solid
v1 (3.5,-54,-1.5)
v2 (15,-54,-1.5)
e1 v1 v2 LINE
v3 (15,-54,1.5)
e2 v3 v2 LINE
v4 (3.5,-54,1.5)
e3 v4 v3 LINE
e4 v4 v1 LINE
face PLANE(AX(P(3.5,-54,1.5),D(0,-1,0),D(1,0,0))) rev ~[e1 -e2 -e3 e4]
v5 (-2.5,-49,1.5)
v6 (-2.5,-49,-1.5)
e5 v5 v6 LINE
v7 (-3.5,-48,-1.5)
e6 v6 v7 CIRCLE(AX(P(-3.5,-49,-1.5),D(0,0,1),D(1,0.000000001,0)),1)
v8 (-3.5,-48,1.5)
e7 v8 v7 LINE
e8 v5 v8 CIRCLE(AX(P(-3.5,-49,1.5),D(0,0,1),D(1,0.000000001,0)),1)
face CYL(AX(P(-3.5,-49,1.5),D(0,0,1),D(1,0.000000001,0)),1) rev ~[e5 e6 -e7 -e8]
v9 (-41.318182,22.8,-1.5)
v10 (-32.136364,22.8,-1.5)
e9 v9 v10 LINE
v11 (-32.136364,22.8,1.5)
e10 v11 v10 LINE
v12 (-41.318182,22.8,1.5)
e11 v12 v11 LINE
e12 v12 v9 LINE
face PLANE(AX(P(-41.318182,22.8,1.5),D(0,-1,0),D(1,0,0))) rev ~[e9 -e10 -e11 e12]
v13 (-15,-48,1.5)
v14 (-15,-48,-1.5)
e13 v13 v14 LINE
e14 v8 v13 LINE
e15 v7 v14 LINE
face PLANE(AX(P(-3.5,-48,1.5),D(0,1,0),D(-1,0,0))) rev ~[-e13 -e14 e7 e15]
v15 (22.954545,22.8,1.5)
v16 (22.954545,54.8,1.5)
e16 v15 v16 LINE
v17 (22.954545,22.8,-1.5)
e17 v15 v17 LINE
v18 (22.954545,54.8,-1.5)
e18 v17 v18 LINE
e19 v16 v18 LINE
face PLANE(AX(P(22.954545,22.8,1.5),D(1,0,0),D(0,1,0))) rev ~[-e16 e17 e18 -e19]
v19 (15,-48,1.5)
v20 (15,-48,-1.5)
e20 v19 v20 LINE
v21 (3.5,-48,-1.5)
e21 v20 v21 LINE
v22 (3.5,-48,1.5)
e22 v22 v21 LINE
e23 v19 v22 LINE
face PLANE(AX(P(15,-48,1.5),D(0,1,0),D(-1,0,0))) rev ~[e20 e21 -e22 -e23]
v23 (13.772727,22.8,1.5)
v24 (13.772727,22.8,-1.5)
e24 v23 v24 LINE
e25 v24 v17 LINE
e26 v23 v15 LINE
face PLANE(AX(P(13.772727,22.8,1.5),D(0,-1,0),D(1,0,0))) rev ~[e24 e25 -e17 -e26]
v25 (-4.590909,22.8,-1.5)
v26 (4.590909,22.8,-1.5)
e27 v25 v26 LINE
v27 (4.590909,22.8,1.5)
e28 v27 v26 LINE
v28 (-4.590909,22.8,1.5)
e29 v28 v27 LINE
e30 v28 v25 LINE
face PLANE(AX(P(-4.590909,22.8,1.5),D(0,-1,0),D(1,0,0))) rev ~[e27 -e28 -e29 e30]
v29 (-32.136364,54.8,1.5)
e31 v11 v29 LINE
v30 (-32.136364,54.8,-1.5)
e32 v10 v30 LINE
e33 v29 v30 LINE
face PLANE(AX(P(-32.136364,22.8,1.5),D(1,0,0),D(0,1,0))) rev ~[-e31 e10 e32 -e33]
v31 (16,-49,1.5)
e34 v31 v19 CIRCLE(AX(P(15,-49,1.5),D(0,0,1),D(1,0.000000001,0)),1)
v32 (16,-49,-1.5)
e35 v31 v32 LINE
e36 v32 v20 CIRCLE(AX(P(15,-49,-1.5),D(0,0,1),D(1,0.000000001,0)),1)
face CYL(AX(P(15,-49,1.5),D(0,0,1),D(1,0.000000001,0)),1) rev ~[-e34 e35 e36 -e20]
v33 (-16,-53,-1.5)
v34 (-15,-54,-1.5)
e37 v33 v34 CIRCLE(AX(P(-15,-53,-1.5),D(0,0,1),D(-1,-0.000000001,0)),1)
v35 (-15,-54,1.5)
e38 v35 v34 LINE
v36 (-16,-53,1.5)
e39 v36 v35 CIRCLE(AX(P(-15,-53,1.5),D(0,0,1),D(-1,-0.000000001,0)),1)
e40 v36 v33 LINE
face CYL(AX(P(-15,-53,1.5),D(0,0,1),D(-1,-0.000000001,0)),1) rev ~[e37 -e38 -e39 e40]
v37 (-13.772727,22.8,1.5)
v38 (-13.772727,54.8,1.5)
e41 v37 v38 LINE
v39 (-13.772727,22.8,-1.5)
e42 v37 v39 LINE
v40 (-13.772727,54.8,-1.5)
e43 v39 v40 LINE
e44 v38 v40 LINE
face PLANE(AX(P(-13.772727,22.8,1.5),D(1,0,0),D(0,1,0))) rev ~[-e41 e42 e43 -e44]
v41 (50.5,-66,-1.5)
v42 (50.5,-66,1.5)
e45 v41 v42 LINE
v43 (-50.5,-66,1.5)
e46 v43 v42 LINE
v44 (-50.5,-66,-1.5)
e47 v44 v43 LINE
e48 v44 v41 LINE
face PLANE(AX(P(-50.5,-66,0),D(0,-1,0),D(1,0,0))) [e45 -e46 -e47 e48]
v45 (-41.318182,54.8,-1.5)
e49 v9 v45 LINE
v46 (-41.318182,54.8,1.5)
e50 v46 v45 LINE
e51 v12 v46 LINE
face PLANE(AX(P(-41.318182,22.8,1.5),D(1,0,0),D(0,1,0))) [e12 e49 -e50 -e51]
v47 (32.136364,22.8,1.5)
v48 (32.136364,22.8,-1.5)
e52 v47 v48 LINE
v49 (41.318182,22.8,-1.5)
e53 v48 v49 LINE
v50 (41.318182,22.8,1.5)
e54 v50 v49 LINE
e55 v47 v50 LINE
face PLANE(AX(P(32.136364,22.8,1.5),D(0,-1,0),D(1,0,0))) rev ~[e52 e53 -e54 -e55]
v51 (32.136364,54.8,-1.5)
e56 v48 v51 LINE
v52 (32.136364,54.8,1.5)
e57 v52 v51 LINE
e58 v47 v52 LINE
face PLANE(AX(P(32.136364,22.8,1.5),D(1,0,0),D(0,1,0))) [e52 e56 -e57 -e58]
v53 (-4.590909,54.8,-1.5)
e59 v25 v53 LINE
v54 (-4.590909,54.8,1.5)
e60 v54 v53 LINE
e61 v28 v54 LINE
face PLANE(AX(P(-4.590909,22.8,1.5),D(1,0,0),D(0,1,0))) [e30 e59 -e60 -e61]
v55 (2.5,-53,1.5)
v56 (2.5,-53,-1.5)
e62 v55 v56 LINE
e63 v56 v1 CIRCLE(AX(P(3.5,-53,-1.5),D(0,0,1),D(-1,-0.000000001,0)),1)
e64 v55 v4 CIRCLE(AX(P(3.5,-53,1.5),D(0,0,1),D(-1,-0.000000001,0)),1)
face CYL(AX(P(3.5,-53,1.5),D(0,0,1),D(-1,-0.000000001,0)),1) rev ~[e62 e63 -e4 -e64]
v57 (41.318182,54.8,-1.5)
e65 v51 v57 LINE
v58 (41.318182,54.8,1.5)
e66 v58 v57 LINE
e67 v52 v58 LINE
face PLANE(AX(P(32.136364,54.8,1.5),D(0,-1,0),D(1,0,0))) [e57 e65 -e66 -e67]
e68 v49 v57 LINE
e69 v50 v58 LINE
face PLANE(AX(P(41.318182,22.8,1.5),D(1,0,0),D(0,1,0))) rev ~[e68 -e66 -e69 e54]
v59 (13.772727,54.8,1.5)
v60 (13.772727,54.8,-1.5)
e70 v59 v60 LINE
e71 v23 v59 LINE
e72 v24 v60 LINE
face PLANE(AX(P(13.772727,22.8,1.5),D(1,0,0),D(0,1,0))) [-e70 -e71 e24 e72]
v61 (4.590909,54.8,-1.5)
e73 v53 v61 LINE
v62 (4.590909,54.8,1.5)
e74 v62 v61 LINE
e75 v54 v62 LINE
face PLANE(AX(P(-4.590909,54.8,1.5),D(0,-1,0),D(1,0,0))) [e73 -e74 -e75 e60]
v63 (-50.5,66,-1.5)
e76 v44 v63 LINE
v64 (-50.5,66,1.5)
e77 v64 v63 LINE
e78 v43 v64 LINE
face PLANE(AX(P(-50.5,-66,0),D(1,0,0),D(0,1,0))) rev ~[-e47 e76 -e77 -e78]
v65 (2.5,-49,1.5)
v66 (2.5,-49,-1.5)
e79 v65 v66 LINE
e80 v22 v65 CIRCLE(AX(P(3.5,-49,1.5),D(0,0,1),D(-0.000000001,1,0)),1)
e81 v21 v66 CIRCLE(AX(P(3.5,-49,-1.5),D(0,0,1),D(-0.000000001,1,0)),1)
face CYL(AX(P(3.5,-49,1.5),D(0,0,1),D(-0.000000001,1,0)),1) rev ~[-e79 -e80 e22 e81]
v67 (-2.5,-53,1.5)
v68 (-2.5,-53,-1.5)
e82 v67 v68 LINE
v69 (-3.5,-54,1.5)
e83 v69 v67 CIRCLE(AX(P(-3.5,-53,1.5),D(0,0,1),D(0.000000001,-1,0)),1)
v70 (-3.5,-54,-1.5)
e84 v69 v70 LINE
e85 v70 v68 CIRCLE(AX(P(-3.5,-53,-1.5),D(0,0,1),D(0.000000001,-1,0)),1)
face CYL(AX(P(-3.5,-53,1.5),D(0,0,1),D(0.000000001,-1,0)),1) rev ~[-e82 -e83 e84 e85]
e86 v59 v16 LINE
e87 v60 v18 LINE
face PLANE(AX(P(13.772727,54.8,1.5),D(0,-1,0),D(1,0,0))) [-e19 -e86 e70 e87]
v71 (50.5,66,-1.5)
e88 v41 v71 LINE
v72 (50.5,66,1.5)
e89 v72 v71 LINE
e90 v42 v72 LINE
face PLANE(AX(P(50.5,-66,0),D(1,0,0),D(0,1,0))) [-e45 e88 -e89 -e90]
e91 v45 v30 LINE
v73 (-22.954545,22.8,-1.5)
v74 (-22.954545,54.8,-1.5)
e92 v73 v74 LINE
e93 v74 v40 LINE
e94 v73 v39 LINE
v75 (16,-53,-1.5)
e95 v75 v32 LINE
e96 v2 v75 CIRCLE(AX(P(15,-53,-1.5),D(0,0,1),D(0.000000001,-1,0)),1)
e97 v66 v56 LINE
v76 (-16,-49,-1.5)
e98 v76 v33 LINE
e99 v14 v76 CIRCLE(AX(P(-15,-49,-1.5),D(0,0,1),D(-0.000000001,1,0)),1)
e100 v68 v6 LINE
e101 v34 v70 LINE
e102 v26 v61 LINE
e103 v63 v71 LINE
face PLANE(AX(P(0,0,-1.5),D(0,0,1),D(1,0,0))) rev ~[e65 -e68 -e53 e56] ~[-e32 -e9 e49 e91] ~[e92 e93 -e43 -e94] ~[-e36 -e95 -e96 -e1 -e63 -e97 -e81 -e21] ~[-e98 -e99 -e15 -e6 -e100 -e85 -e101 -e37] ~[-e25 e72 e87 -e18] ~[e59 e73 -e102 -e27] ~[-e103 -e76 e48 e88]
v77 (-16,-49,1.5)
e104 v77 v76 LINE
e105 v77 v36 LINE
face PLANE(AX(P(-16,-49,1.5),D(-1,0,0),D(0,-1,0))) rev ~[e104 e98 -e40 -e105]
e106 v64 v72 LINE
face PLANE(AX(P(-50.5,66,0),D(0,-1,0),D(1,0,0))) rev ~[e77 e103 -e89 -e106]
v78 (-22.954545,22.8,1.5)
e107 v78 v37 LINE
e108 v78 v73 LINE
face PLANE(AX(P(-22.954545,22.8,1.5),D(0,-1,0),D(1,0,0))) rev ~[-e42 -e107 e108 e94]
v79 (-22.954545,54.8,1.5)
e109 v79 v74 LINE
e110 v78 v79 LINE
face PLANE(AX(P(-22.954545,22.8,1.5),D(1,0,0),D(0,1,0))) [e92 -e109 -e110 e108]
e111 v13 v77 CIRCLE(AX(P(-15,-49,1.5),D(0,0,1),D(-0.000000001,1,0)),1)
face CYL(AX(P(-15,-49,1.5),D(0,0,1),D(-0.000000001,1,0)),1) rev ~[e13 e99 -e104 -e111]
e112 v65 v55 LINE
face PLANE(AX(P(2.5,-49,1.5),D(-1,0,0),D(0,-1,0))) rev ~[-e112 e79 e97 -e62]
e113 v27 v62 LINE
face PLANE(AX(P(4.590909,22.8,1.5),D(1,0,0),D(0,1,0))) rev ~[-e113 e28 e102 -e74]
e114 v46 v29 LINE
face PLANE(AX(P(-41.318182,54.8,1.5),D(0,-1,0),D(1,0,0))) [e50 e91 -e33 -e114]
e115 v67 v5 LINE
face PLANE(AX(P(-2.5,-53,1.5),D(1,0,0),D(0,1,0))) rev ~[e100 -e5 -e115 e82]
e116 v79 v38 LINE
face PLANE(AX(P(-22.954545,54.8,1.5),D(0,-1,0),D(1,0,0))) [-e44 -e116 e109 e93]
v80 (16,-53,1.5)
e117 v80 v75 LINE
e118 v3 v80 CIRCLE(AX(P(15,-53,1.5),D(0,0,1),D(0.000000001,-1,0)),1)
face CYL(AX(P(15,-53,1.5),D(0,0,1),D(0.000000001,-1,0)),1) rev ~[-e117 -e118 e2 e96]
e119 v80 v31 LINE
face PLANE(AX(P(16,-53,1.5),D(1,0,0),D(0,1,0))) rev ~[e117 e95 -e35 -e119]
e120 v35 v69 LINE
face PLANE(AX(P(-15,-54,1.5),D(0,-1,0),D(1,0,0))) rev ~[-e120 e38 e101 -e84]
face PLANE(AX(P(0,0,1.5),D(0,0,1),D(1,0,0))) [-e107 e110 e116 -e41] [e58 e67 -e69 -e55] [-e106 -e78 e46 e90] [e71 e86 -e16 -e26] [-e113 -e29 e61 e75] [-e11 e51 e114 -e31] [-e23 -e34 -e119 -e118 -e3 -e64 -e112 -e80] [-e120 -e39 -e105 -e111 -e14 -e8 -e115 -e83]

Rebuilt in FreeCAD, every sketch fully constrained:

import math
import FreeCAD as App
import Part
import Sketcher


def add_polygon(sketch, points):
    """Adds a closed chain of lines whose ends are joined by coincident constraints."""
    first, n = sketch.GeometryCount, len(points)
    for a, b in zip(points, points[1:] + points[:1]):
        sketch.addGeometry(Part.LineSegment(App.Vector(*a, 0), App.Vector(*b, 0)), False)
    for i in range(n):
        sketch.addConstraint(Sketcher.Constraint("Coincident", first + i, 2, first + (i + 1) % n, 1))

doc = App.newDocument("Part")
body = doc.addObject("PartDesign::Body", "Body")

# Sketch on XY plane
sketch1 = body.newObject("Sketcher::SketchObject", "Sketch")
sketch1.AttachmentSupport = (doc.getObject("XY_Plane"), [""])
sketch1.MapMode = "FlatFace"
add_polygon(sketch1, [(-50, 66), (-50, -66), (50, -66), (50, 66)])  # lines 0-3
sketch1.addConstraint([
    Sketcher.Constraint("Vertical", 0),
    Sketcher.Constraint("Horizontal", 1),
    Sketcher.Constraint("Vertical", 2),
    Sketcher.Constraint("Horizontal", 3),
    Sketcher.Constraint("Symmetric", 0, 2, 2, 2, -1, 1),
    Sketcher.Constraint("DistanceX", 1, 1, 1, 2, 101.0),
    Sketcher.Constraint("DistanceY", 0, 2, 0, 1, 132.0),
])
pad1 = body.newObject("PartDesign::Pad", "Pad")
pad1.Profile = sketch1
pad1.Length = 3
pad1.Midplane = True

# Sketch on XY plane
sketch2 = body.newObject("Sketcher::SketchObject", "Sketch001")
sketch2.AttachmentSupport = (doc.getObject("XY_Plane"), [""])
sketch2.MapMode = "FlatFace"
sketch2.AttachmentOffset = App.Placement(App.Vector(0, 0, 1.5), App.Rotation())
sketch2.addGeometry(Part.LineSegment(App.Vector(3.5, -54, 0), App.Vector(15, -54, 0)), False)  # 0
sketch2.addGeometry(Part.ArcOfCircle(Part.Circle(App.Vector(15, -53, 0), App.Vector(0, 0, 1), 1), math.radians(-90), math.radians(0)), False)  # 1
sketch2.addGeometry(Part.LineSegment(App.Vector(16, -53, 0), App.Vector(16, -49, 0)), False)  # 2
sketch2.addGeometry(Part.ArcOfCircle(Part.Circle(App.Vector(15, -49, 0), App.Vector(0, 0, 1), 1), math.radians(0), math.radians(90)), False)  # 3
sketch2.addGeometry(Part.LineSegment(App.Vector(15, -48, 0), App.Vector(3.5, -48, 0)), False)  # 4
sketch2.addGeometry(Part.ArcOfCircle(Part.Circle(App.Vector(3.5, -49, 0), App.Vector(0, 0, 1), 1), math.radians(90), math.radians(180)), False)  # 5
sketch2.addGeometry(Part.LineSegment(App.Vector(2.5, -49, 0), App.Vector(2.5, -53, 0)), False)  # 6
sketch2.addGeometry(Part.ArcOfCircle(Part.Circle(App.Vector(3.5, -53, 0), App.Vector(0, 0, 1), 1), math.radians(-180), math.radians(-90)), False)  # 7
add_polygon(sketch2, [(-41.3, 54.8), (-41.3, 22.8), (-32.1, 22.8), (-32.1, 54.8)])  # lines 8-11
add_polygon(sketch2, [(-23, 54.8), (-23, 22.8), (-13.8, 22.8), (-13.8, 54.8)])  # lines 12-15
add_polygon(sketch2, [(-4.6, 54.8), (-4.6, 22.8), (4.6, 22.8), (4.6, 54.8)])  # lines 16-19
add_polygon(sketch2, [(13.8, 54.8), (13.8, 22.8), (23, 22.8), (23, 54.8)])  # lines 20-23
add_polygon(sketch2, [(32.1, 54.8), (32.1, 22.8), (41.3, 22.8), (41.3, 54.8)])  # lines 24-27
sketch2.addGeometry(Part.LineSegment(App.Vector(-15, -54, 0), App.Vector(-3.5, -54, 0)), False)  # 28
sketch2.addGeometry(Part.ArcOfCircle(Part.Circle(App.Vector(-3.5, -53, 0), App.Vector(0, 0, 1), 1), math.radians(-90), math.radians(0)), False)  # 29
sketch2.addGeometry(Part.LineSegment(App.Vector(-2.5, -53, 0), App.Vector(-2.5, -49, 0)), False)  # 30
sketch2.addGeometry(Part.ArcOfCircle(Part.Circle(App.Vector(-3.5, -49, 0), App.Vector(0, 0, 1), 1), math.radians(0), math.radians(90)), False)  # 31
sketch2.addGeometry(Part.LineSegment(App.Vector(-3.5, -48, 0), App.Vector(-15, -48, 0)), False)  # 32
sketch2.addGeometry(Part.ArcOfCircle(Part.Circle(App.Vector(-15, -49, 0), App.Vector(0, 0, 1), 1), math.radians(90), math.radians(180)), False)  # 33
sketch2.addGeometry(Part.LineSegment(App.Vector(-16, -49, 0), App.Vector(-16, -53, 0)), False)  # 34
sketch2.addGeometry(Part.ArcOfCircle(Part.Circle(App.Vector(-15, -53, 0), App.Vector(0, 0, 1), 1), math.radians(-180), math.radians(-90)), False)  # 35
sketch2.addConstraint([
    Sketcher.Constraint("Tangent", 0, 2, 1, 1),
    Sketcher.Constraint("Tangent", 1, 2, 2, 1),
    Sketcher.Constraint("Tangent", 2, 2, 3, 1),
    Sketcher.Constraint("Tangent", 3, 2, 4, 1),
    Sketcher.Constraint("Tangent", 4, 2, 5, 1),
    Sketcher.Constraint("Tangent", 5, 2, 6, 1),
    Sketcher.Constraint("Tangent", 6, 2, 7, 1),
    Sketcher.Constraint("Tangent", 7, 2, 0, 1),
    Sketcher.Constraint("Tangent", 28, 2, 29, 1),
    Sketcher.Constraint("Tangent", 29, 2, 30, 1),
    Sketcher.Constraint("Tangent", 30, 2, 31, 1),
    Sketcher.Constraint("Tangent", 31, 2, 32, 1),
    Sketcher.Constraint("Tangent", 32, 2, 33, 1),
    Sketcher.Constraint("Tangent", 33, 2, 34, 1),
    Sketcher.Constraint("Tangent", 34, 2, 35, 1),
    Sketcher.Constraint("Tangent", 35, 2, 28, 1),
    Sketcher.Constraint("Horizontal", 0),
    Sketcher.Constraint("Vertical", 2),
    Sketcher.Constraint("Horizontal", 4),
    Sketcher.Constraint("Vertical", 6),
    Sketcher.Constraint("Vertical", 8),
    Sketcher.Constraint("Horizontal", 9),
    Sketcher.Constraint("Vertical", 10),
    Sketcher.Constraint("Horizontal", 11),
    Sketcher.Constraint("Vertical", 12),
    Sketcher.Constraint("Horizontal", 13),
    Sketcher.Constraint("Vertical", 14),
    Sketcher.Constraint("Horizontal", 15),
    Sketcher.Constraint("Vertical", 16),
    Sketcher.Constraint("Horizontal", 17),
    Sketcher.Constraint("Vertical", 18),
    Sketcher.Constraint("Horizontal", 19),
    Sketcher.Constraint("Vertical", 20),
    Sketcher.Constraint("Horizontal", 21),
    Sketcher.Constraint("Vertical", 22),
    Sketcher.Constraint("Horizontal", 23),
    Sketcher.Constraint("Vertical", 24),
    Sketcher.Constraint("Horizontal", 25),
    Sketcher.Constraint("Vertical", 26),
    Sketcher.Constraint("Horizontal", 27),
    Sketcher.Constraint("Horizontal", 28),
    Sketcher.Constraint("Vertical", 30),
    Sketcher.Constraint("Horizontal", 32),
    Sketcher.Constraint("Vertical", 34),
    Sketcher.Constraint("Equal", 1, 3),
    Sketcher.Constraint("Equal", 3, 5),
    Sketcher.Constraint("Equal", 5, 7),
    Sketcher.Constraint("Equal", 7, 29),
    Sketcher.Constraint("Equal", 29, 31),
    Sketcher.Constraint("Equal", 31, 33),
    Sketcher.Constraint("Equal", 33, 35),
    Sketcher.Constraint("Symmetric", 7, 3, 29, 3, -2),
    Sketcher.Constraint("Symmetric", 3, 3, 33, 3, -2),
    Sketcher.Constraint("Symmetric", 13, 2, 20, 2, -2),
    Sketcher.Constraint("Symmetric", 15, 2, 22, 2, -2),
    Sketcher.Constraint("Symmetric", 9, 2, 24, 2, -2),
    Sketcher.Constraint("Symmetric", 11, 2, 26, 2, -2),
    Sketcher.Constraint("Horizontal", 9, 2, 12, 2),
    Sketcher.Constraint("Horizontal", 11, 2, 14, 2),
    Sketcher.Constraint("Horizontal", 13, 2, 16, 2),
    Sketcher.Constraint("Horizontal", 15, 2, 18, 2),
    Sketcher.Constraint("Equal", 11, 13),
    Sketcher.Constraint("Equal", 15, 17),
    Sketcher.Constraint("Radius", 1, 1.0),
    Sketcher.Constraint("DistanceY", 2, 1, 2, 2, 4.0),
    Sketcher.Constraint("DistanceY", 8, 2, 8, 1, 32.0),
    Sketcher.Constraint("DistanceX", 0, 1, 0, 2, 11.5),
    Sketcher.Constraint("DistanceX", -1, 1, 1, 3, 15.0),
    Sketcher.Constraint("DistanceY", 1, 3, -1, 1, 53.0),
    Sketcher.Constraint("DistanceY", -1, 1, 8, 2, 22.8),
    Sketcher.Constraint("DistanceX", 9, 1, 9, 2, 9.181818),
    Sketcher.Constraint("DistanceX", 8, 2, -1, 1, 41.318182),
    Sketcher.Constraint("DistanceX", 16, 2, -1, 1, 4.590909),
    Sketcher.Constraint("DistanceX", 9, 2, 12, 2, 9.181818),
])
pocket1 = body.newObject("PartDesign::Pocket", "Pocket")
pocket1.Profile = sketch2
pocket1.Type = "ThroughAll"

doc.recompute()
